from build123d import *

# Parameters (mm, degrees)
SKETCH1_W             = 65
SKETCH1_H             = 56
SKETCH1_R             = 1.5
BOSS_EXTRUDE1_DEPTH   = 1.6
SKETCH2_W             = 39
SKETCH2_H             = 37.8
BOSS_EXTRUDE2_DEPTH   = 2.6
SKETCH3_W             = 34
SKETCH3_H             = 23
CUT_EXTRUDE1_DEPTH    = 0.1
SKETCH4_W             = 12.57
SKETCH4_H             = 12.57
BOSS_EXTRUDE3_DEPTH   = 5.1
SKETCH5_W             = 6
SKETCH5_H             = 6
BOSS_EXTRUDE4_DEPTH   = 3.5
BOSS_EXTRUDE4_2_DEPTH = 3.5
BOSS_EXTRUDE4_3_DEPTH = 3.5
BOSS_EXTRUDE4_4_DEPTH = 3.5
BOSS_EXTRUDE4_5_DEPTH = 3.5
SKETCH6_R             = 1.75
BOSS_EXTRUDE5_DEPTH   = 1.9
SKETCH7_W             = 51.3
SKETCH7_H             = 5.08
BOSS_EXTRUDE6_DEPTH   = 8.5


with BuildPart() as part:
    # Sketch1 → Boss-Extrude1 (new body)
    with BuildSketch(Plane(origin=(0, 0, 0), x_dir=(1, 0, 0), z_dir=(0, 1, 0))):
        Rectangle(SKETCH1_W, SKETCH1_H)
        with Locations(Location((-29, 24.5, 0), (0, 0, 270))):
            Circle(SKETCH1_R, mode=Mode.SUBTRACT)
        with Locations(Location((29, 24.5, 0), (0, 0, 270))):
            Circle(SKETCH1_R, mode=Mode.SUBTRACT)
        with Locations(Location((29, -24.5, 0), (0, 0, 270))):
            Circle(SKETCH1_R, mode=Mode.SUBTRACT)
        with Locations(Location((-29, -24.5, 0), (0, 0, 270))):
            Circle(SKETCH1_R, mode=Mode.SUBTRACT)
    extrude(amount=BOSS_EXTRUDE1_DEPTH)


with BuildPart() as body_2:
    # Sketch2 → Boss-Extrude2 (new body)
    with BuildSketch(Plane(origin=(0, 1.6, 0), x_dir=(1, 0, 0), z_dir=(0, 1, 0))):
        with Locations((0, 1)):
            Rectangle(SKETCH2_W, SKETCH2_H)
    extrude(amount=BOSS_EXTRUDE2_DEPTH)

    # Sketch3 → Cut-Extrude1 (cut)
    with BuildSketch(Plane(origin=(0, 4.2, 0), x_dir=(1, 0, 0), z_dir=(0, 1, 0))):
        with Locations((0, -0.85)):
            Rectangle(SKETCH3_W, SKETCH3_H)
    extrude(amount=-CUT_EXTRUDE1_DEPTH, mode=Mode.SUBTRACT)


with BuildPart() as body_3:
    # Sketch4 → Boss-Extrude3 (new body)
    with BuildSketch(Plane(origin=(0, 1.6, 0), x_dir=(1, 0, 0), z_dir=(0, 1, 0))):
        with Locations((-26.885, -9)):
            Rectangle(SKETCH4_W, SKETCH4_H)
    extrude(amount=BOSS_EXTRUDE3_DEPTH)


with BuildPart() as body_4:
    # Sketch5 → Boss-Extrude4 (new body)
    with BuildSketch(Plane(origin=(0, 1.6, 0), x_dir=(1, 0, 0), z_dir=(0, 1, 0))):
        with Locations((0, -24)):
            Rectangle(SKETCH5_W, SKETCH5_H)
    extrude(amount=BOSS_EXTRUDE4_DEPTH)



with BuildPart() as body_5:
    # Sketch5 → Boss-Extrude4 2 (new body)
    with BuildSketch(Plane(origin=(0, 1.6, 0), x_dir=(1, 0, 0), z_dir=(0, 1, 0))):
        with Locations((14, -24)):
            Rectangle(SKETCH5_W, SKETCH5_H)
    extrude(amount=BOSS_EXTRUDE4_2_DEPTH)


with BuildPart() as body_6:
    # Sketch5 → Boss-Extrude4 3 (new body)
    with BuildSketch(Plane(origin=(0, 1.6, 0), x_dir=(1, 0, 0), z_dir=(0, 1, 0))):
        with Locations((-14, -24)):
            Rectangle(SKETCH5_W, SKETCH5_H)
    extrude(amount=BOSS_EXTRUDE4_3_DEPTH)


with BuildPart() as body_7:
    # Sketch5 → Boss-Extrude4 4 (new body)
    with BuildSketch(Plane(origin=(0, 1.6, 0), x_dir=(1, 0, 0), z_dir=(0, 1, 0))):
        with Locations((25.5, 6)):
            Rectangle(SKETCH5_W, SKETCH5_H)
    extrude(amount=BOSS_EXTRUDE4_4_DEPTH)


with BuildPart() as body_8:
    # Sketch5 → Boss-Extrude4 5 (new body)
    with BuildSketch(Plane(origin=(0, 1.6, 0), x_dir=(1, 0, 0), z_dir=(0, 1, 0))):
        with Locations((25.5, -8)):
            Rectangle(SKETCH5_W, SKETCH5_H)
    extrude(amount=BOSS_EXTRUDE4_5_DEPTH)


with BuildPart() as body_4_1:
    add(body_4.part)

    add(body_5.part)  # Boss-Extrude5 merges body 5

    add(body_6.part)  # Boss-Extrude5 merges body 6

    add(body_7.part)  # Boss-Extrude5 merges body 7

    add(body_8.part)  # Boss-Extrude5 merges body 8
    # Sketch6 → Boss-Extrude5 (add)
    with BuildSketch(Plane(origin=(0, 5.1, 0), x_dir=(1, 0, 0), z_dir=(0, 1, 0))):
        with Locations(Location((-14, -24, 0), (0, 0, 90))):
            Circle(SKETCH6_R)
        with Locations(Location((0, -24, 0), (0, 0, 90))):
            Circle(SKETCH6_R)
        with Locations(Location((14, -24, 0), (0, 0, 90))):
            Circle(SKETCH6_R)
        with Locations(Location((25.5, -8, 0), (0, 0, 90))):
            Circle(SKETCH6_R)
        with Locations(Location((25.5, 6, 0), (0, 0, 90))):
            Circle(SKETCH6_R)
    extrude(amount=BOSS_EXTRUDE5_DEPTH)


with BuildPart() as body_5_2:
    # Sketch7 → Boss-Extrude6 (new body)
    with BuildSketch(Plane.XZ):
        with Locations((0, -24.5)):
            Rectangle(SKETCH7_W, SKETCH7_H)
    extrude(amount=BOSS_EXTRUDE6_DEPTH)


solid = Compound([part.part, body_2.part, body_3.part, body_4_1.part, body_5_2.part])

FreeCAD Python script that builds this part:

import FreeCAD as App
import Part
import Sketcher
from FreeCAD import Vector
Q = App.Units.Quantity

doc = App.newDocument("Part")
params = doc.addObject("Spreadsheet::Sheet", "Params")
for row, (alias, value) in enumerate([
    ("sketch1_diameter", "3 mm"),
    ("sketch1_width", "65 mm"),
    ("sketch1_height", "56 mm"),
    ("pad1_length", "1.6 mm"),
    ("sketch2_width", "39 mm"),
    ("sketch2_height", "37.8 mm"),
    ("pad2_length", "2.6 mm"),
    ("sketch3_width", "34 mm"),
    ("sketch3_height", "23 mm"),
    ("pocket1_length", "0.1 mm"),
    ("sketch4_width", "12.57 mm"),
    ("pad3_length", "5.1 mm"),
    ("sketch5_width", "6 mm"),
    ("pad4_length", "3.5 mm"),
    ("sketch6_width", "6 mm"),
    ("pad5_length", "3.5 mm"),
    ("sketch7_width", "6 mm"),
    ("pad6_length", "3.5 mm"),
    ("sketch8_width", "6 mm"),
    ("pad7_length", "3.5 mm"),
    ("sketch9_width", "6 mm"),
    ("pad8_length", "3.5 mm"),
    ("sketch10_diameter", "3.5 mm"),
    ("pad9_length", "1.9 mm"),
    ("sketch11_width", "51.3 mm"),
    ("sketch11_height", "5.08 mm"),
    ("pad10_length", "8.5 mm"),
], start=1):
    params.set(f"A{row}", alias)
    params.set(f"B{row}", "=" + value)
    params.setAlias(f"B{row}", alias)

body = doc.addObject("PartDesign::Body", "Body")

sketch1 = doc.addObject("Sketcher::SketchObject", "Sketch")
body.addObject(sketch1)
sketch1.AttachmentSupport = (doc.XZ_Plane, [""])
sketch1.MapMode = "FlatFace"
sketch1.addGeometry([
    Part.LineSegment(Vector(-32.5, -28, 0), Vector(-32.5, 28, 0)),
    Part.LineSegment(Vector(-32.5, 28, 0), Vector(32.5, 28, 0)),
    Part.LineSegment(Vector(32.5, 28, 0), Vector(32.5, -28, 0)),
    Part.LineSegment(Vector(32.5, -28, 0), Vector(-32.5, -28, 0)),
    Part.Circle(Vector(-29, 24.5, 0), Vector(0, 0, 1), 1.5),
    Part.Circle(Vector(29, 24.5, 0), Vector(0, 0, 1), 1.5),
    Part.Circle(Vector(-29, -24.5, 0), Vector(0, 0, 1), 1.5),
    Part.Circle(Vector(29, -24.5, 0), Vector(0, 0, 1), 1.5),
], False)
sketch1.addConstraint([
    Sketcher.Constraint("Coincident", 0, 2, 1, 1),
    Sketcher.Constraint("Coincident", 1, 2, 2, 1),
    Sketcher.Constraint("Coincident", 2, 2, 3, 1),
    Sketcher.Constraint("Coincident", 3, 2, 0, 1),
    Sketcher.Constraint("Vertical", 0),
    Sketcher.Constraint("Horizontal", 1),
    Sketcher.Constraint("Vertical", 2),
    Sketcher.Constraint("Horizontal", 3),
    Sketcher.Constraint("Equal", 4, 5),
    Sketcher.Constraint("Equal", 5, 6),
    Sketcher.Constraint("Equal", 6, 7),
    Sketcher.Constraint("Symmetric", 5, 3, 6, 3, -1, 1),
    Sketcher.Constraint("Symmetric", 4, 3, 7, 3, -1, 1),
    Sketcher.Constraint("Symmetric", 0, 2, 2, 2, -1, 1),
    Sketcher.Constraint("Symmetric", 4, 3, 5, 3, -2),
    Sketcher.Constraint("Diameter", 4, Q("3 mm")),
    Sketcher.Constraint("DistanceX", 1, 1, 1, 2, Q("65 mm")),
    Sketcher.Constraint("DistanceY", 0, 1, 0, 2, Q("56 mm")),
    Sketcher.Constraint("DistanceX", 4, 3, -1, 1, Q("29 mm")),
    Sketcher.Constraint("DistanceY", 6, 3, 4, 3, Q("49 mm")),
])
sketch1.setExpression("Constraints[15]", "Params.sketch1_diameter")
sketch1.setExpression("Constraints[16]", "Params.sketch1_width")
sketch1.setExpression("Constraints[17]", "Params.sketch1_height")
pad1 = doc.addObject("PartDesign::Pad", "Pad")
body.addObject(pad1)
pad1.Profile = sketch1
pad1.setExpression("Length", "Params.pad1_length")
pad1.Reversed = True
body2 = doc.addObject("PartDesign::Body", "Body001")

sketch2 = doc.addObject("Sketcher::SketchObject", "Sketch001")
body2.addObject(sketch2)
sketch2.AttachmentSupport = (doc.getObject("XZ_Plane001"), [""])
sketch2.MapMode = "FlatFace"
sketch2.AttachmentOffset = App.Placement(Vector(0, 0, -1.6), App.Rotation())
sketch2.addGeometry([
    Part.LineSegment(Vector(-20, -20, 0), Vector(-20, 18, 0)),
    Part.LineSegment(Vector(-20, 18, 0), Vector(20, 18, 0)),
    Part.LineSegment(Vector(20, 18, 0), Vector(20, -20, 0)),
    Part.LineSegment(Vector(20, -20, 0), Vector(-20, -20, 0)),
], False)
sketch2.addConstraint([
    Sketcher.Constraint("Coincident", 0, 2, 1, 1),
    Sketcher.Constraint("Coincident", 1, 2, 2, 1),
    Sketcher.Constraint("Coincident", 2, 2, 3, 1),
    Sketcher.Constraint("Coincident", 3, 2, 0, 1),
    Sketcher.Constraint("Vertical", 0),
    Sketcher.Constraint("Horizontal", 1),
    Sketcher.Constraint("Vertical", 2),
    Sketcher.Constraint("Horizontal", 3),
    Sketcher.Constraint("DistanceX", 1, 1, 1, 2, Q("39 mm")),
    Sketcher.Constraint("DistanceY", 0, 1, 0, 2, Q("37.8 mm")),
    Sketcher.Constraint("DistanceX", 0, 2, -1, 1, Q("19.5 mm")),
    Sketcher.Constraint("DistanceY", -1, 1, 0, 2, Q("17.9 mm")),
])
sketch2.setExpression("Constraints[8]", "Params.sketch2_width")
sketch2.setExpression("Constraints[9]", "Params.sketch2_height")
pad2 = doc.addObject("PartDesign::Pad", "Pad001")
body2.addObject(pad2)
pad2.Profile = sketch2
pad2.setExpression("Length", "Params.pad2_length")
pad2.Reversed = True

sketch3 = doc.addObject("Sketcher::SketchObject", "Sketch002")
body2.addObject(sketch3)
sketch3.AttachmentSupport = (doc.getObject("XZ_Plane001"), [""])
sketch3.MapMode = "FlatFace"
sketch3.AttachmentOffset = App.Placement(Vector(0, 0, -4.2), App.Rotation())
sketch3.addGeometry([
    Part.LineSegment(Vector(-17, -11, 0), Vector(-17, 12, 0)),
    Part.LineSegment(Vector(-17, 12, 0), Vector(17, 12, 0)),
    Part.LineSegment(Vector(17, 12, 0), Vector(17, -11, 0)),
    Part.LineSegment(Vector(17, -11, 0), Vector(-17, -11, 0)),
], False)
sketch3.addConstraint([
    Sketcher.Constraint("Coincident", 0, 2, 1, 1),
    Sketcher.Constraint("Coincident", 1, 2, 2, 1),
    Sketcher.Constraint("Coincident", 2, 2, 3, 1),
    Sketcher.Constraint("Coincident", 3, 2, 0, 1),
    Sketcher.Constraint("Vertical", 0),
    Sketcher.Constraint("Horizontal", 1),
    Sketcher.Constraint("Vertical", 2),
    Sketcher.Constraint("Horizontal", 3),
    Sketcher.Constraint("DistanceX", 1, 1, 1, 2, Q("34 mm")),
    Sketcher.Constraint("DistanceY", 0, 1, 0, 2, Q("23 mm")),
    Sketcher.Constraint("DistanceX", 0, 2, -1, 1, Q("17 mm")),
    Sketcher.Constraint("DistanceY", -1, 1, 0, 2, Q("12.35 mm")),
])
sketch3.setExpression("Constraints[8]", "Params.sketch3_width")
sketch3.setExpression("Constraints[9]", "Params.sketch3_height")
pocket1 = doc.addObject("PartDesign::Pocket", "Pocket")
body2.addObject(pocket1)
pocket1.Profile = sketch3
pocket1.setExpression("Length", "Params.pocket1_length")
pocket1.Reversed = True
body3 = doc.addObject("PartDesign::Body", "Body002")

sketch4 = doc.addObject("Sketcher::SketchObject", "Sketch003")
body3.addObject(sketch4)
sketch4.AttachmentSupport = (doc.getObject("XZ_Plane002"), [""])
sketch4.MapMode = "FlatFace"
sketch4.AttachmentOffset = App.Placement(Vector(0, 0, -1.6), App.Rotation())
sketch4.addGeometry([
    Part.LineSegment(Vector(-33, 3, 0), Vector(-33, 15, 0)),
    Part.LineSegment(Vector(-33, 15, 0), Vector(-21, 15, 0)),
    Part.LineSegment(Vector(-21, 15, 0), Vector(-21, 3, 0)),
    Part.LineSegment(Vector(-21, 3, 0), Vector(-33, 3, 0)),
], False)
sketch4.addConstraint([
    Sketcher.Constraint("Coincident", 0, 2, 1, 1),
    Sketcher.Constraint("Coincident", 1, 2, 2, 1),
    Sketcher.Constraint("Coincident", 2, 2, 3, 1),
    Sketcher.Constraint("Coincident", 3, 2, 0, 1),
    Sketcher.Constraint("Vertical", 0),
    Sketcher.Constraint("Horizontal", 1),
    Sketcher.Constraint("Vertical", 2),
    Sketcher.Constraint("Horizontal", 3),
    Sketcher.Constraint("Equal", 3, 0),
    Sketcher.Constraint("DistanceX", 1, 1, 1, 2, Q("12.57 mm")),
    Sketcher.Constraint("DistanceX", 1, 2, -1, 1, Q("20.6 mm")),
    Sketcher.Constraint("DistanceY", -1, 1, 0, 2, Q("15.285 mm")),
])
sketch4.setExpression("Constraints[9]", "Params.sketch4_width")
pad3 = doc.addObject("PartDesign::Pad", "Pad002")
body3.addObject(pad3)
pad3.Profile = sketch4
pad3.setExpression("Length", "Params.pad3_length")
pad3.Reversed = True
body4 = doc.addObject("PartDesign::Body", "Body003")

sketch5 = doc.addObject("Sketcher::SketchObject", "Sketch004")
body4.addObject(sketch5)
sketch5.AttachmentSupport = (doc.getObject("XZ_Plane003"), [""])
sketch5.MapMode = "FlatFace"
sketch5.AttachmentOffset = App.Placement(Vector(0, 0, -1.6), App.Rotation())
sketch5.addGeometry([
    Part.LineSegment(Vector(-3, 21, 0), Vector(-3, 27, 0)),
    Part.LineSegment(Vector(-3, 27, 0), Vector(3, 27, 0)),
    Part.LineSegment(Vector(3, 27, 0), Vector(3, 21, 0)),
    Part.LineSegment(Vector(3, 21, 0), Vector(-3, 21, 0)),
], False)
sketch5.addConstraint([
    Sketcher.Constraint("Coincident", 0, 2, 1, 1),
    Sketcher.Constraint("Coincident", 1, 2, 2, 1),
    Sketcher.Constraint("Coincident", 2, 2, 3, 1),
    Sketcher.Constraint("Coincident", 3, 2, 0, 1),
    Sketcher.Constraint("Vertical", 0),
    Sketcher.Constraint("Horizontal", 1),
    Sketcher.Constraint("Vertical", 2),
    Sketcher.Constraint("Horizontal", 3),
    Sketcher.Constraint("Equal", 3, 0),
    Sketcher.Constraint("DistanceX", 1, 1, 1, 2, Q("6 mm")),
    Sketcher.Constraint("DistanceX", 0, 2, -1, 1, Q("3 mm")),
    Sketcher.Constraint("DistanceY", -1, 1, 0, 2, Q("27 mm")),
])
sketch5.setExpression("Constraints[9]", "Params.sketch5_width")
pad4 = doc.addObject("PartDesign::Pad", "Pad003")
body4.addObject(pad4)
pad4.Profile = sketch5
pad4.setExpression("Length", "Params.pad4_length")
pad4.Reversed = True
body5 = doc.addObject("PartDesign::Body", "Body004")

sketch6 = doc.addObject("Sketcher::SketchObject", "Sketch005")
body5.addObject(sketch6)
sketch6.AttachmentSupport = (doc.getObject("XZ_Plane004"), [""])
sketch6.MapMode = "FlatFace"
sketch6.AttachmentOffset = App.Placement(Vector(0, 0, -1.6), App.Rotation())
sketch6.addGeometry([
    Part.LineSegment(Vector(11, 21, 0), Vector(11, 27, 0)),
    Part.LineSegment(Vector(11, 27, 0), Vector(17, 27, 0)),
    Part.LineSegment(Vector(17, 27, 0), Vector(17, 21, 0)),
    Part.LineSegment(Vector(17, 21, 0), Vector(11, 21, 0)),
], False)
sketch6.addConstraint([
    Sketcher.Constraint("Coincident", 0, 2, 1, 1),
    Sketcher.Constraint("Coincident", 1, 2, 2, 1),
    Sketcher.Constraint("Coincident", 2, 2, 3, 1),
    Sketcher.Constraint("Coincident", 3, 2, 0, 1),
    Sketcher.Constraint("Vertical", 0),
    Sketcher.Constraint("Horizontal", 1),
    Sketcher.Constraint("Vertical", 2),
    Sketcher.Constraint("Horizontal", 3),
    Sketcher.Constraint("Equal", 3, 0),
    Sketcher.Constraint("DistanceX", 1, 1, 1, 2, Q("6 mm")),
    Sketcher.Constraint("DistanceX", -1, 1, 0, 2, Q("11 mm")),
    Sketcher.Constraint("DistanceY", -1, 1, 0, 2, Q("27 mm")),
])
sketch6.setExpression("Constraints[9]", "Params.sketch6_width")
pad5 = doc.addObject("PartDesign::Pad", "Pad004")
body5.addObject(pad5)
pad5.Profile = sketch6
pad5.setExpression("Length", "Params.pad5_length")
pad5.Reversed = True
body6 = doc.addObject("PartDesign::Body", "Body005")

sketch7 = doc.addObject("Sketcher::SketchObject", "Sketch006")
body6.addObject(sketch7)
sketch7.AttachmentSupport = (doc.getObject("XZ_Plane005"), [""])
sketch7.MapMode = "FlatFace"
sketch7.AttachmentOffset = App.Placement(Vector(0, 0, -1.6), App.Rotation())
sketch7.addGeometry([
    Part.LineSegment(Vector(-17, 21, 0), Vector(-17, 27, 0)),
    Part.LineSegment(Vector(-17, 27, 0), Vector(-11, 27, 0)),
    Part.LineSegment(Vector(-11, 27, 0), Vector(-11, 21, 0)),
    Part.LineSegment(Vector(-11, 21, 0), Vector(-17, 21, 0)),
], False)
sketch7.addConstraint([
    Sketcher.Constraint("Coincident", 0, 2, 1, 1),
    Sketcher.Constraint("Coincident", 1, 2, 2, 1),
    Sketcher.Constraint("Coincident", 2, 2, 3, 1),
    Sketcher.Constraint("Coincident", 3, 2, 0, 1),
    Sketcher.Constraint("Vertical", 0),
    Sketcher.Constraint("Horizontal", 1),
    Sketcher.Constraint("Vertical", 2),
    Sketcher.Constraint("Horizontal", 3),
    Sketcher.Constraint("Equal", 3, 0),
    Sketcher.Constraint("DistanceX", 1, 1, 1, 2, Q("6 mm")),
    Sketcher.Constraint("DistanceX", 0, 2, -1, 1, Q("17 mm")),
    Sketcher.Constraint("DistanceY", -1, 1, 0, 2, Q("27 mm")),
])
sketch7.setExpression("Constraints[9]", "Params.sketch7_width")
pad6 = doc.addObject("PartDesign::Pad", "Pad005")
body6.addObject(pad6)
pad6.Profile = sketch7
pad6.setExpression("Length", "Params.pad6_length")
pad6.Reversed = True
body7 = doc.addObject("PartDesign::Body", "Body006")

sketch8 = doc.addObject("Sketcher::SketchObject", "Sketch007")
body7.addObject(sketch8)
sketch8.AttachmentSupport = (doc.getObject("XZ_Plane006"), [""])
sketch8.MapMode = "FlatFace"
sketch8.AttachmentOffset = App.Placement(Vector(0, 0, -1.6), App.Rotation())
sketch8.addGeometry([
    Part.LineSegment(Vector(22, -9, 0), Vector(22, -3, 0)),
    Part.LineSegment(Vector(22, -3, 0), Vector(28, -3, 0)),
    Part.LineSegment(Vector(28, -3, 0), Vector(28, -9, 0)),
    Part.LineSegment(Vector(28, -9, 0), Vector(22, -9, 0)),
], False)
sketch8.addConstraint([
    Sketcher.Constraint("Coincident", 0, 2, 1, 1),
    Sketcher.Constraint("Coincident", 1, 2, 2, 1),
    Sketcher.Constraint("Coincident", 2, 2, 3, 1),
    Sketcher.Constraint("Coincident", 3, 2, 0, 1),
    Sketcher.Constraint("Vertical", 0),
    Sketcher.Constraint("Horizontal", 1),
    Sketcher.Constraint("Vertical", 2),
    Sketcher.Constraint("Horizontal", 3),
    Sketcher.Constraint("Equal", 3, 0),
    Sketcher.Constraint("DistanceX", 1, 1, 1, 2, Q("6 mm")),
    Sketcher.Constraint("DistanceY", 0, 2, -1, 1, Q("3 mm")),
    Sketcher.Constraint("DistanceX", -1, 1, 0, 2, Q("22.5 mm")),
])
sketch8.setExpression("Constraints[9]", "Params.sketch8_width")
pad7 = doc.addObject("PartDesign::Pad", "Pad006")
body7.addObject(pad7)
pad7.Profile = sketch8
pad7.setExpression("Length", "Params.pad7_length")
pad7.Reversed = True
body8 = doc.addObject("PartDesign::Body", "Body007")

sketch9 = doc.addObject("Sketcher::SketchObject", "Sketch008")
body8.addObject(sketch9)
sketch9.AttachmentSupport = (doc.getObject("XZ_Plane007"), [""])
sketch9.MapMode = "FlatFace"
sketch9.AttachmentOffset = App.Placement(Vector(0, 0, -1.6), App.Rotation())
sketch9.addGeometry([
    Part.LineSegment(Vector(22, 5, 0), Vector(22, 11, 0)),
    Part.LineSegment(Vector(22, 11, 0), Vector(28, 11, 0)),
    Part.LineSegment(Vector(28, 11, 0), Vector(28, 5, 0)),
    Part.LineSegment(Vector(28, 5, 0), Vector(22, 5, 0)),
], False)
sketch9.addConstraint([
    Sketcher.Constraint("Coincident", 0, 2, 1, 1),
    Sketcher.Constraint("Coincident", 1, 2, 2, 1),
    Sketcher.Constraint("Coincident", 2, 2, 3, 1),
    Sketcher.Constraint("Coincident", 3, 2, 0, 1),
    Sketcher.Constraint("Vertical", 0),
    Sketcher.Constraint("Horizontal", 1),
    Sketcher.Constraint("Vertical", 2),
    Sketcher.Constraint("Horizontal", 3),
    Sketcher.Constraint("Equal", 3, 0),
    Sketcher.Constraint("DistanceX", 1, 1, 1, 2, Q("6 mm")),
    Sketcher.Constraint("DistanceY", -1, 1, 0, 2, Q("11 mm")),
    Sketcher.Constraint("DistanceX", -1, 1, 0, 2, Q("22.5 mm")),
])
sketch9.setExpression("Constraints[9]", "Params.sketch9_width")
pad8 = doc.addObject("PartDesign::Pad", "Pad007")
body8.addObject(pad8)
pad8.Profile = sketch9
pad8.setExpression("Length", "Params.pad8_length")
pad8.Reversed = True
body4.AllowCompound = True
doc.recompute()

boolean = doc.addObject("PartDesign::Boolean", "Boolean")
body4.addObject(boolean)
boolean.Type = "Fuse"
boolean.addObjects([body5])
doc.recompute()

boolean2 = doc.addObject("PartDesign::Boolean", "Boolean001")
body4.addObject(boolean2)
boolean2.Type = "Fuse"
boolean2.addObjects([body6])
doc.recompute()

boolean3 = doc.addObject("PartDesign::Boolean", "Boolean002")
body4.addObject(boolean3)
boolean3.Type = "Fuse"
boolean3.addObjects([body7])
doc.recompute()

boolean4 = doc.addObject("PartDesign::Boolean", "Boolean003")
body4.addObject(boolean4)
boolean4.Type = "Fuse"
boolean4.addObjects([body8])

sketch10 = doc.addObject("Sketcher::SketchObject", "Sketch009")
body4.addObject(sketch10)
sketch10.AttachmentSupport = (doc.getObject("XZ_Plane003"), [""])
sketch10.MapMode = "FlatFace"
sketch10.AttachmentOffset = App.Placement(Vector(0, 0, -5.1), App.Rotation())
sketch10.addGeometry([
    Part.Circle(Vector(-14, 24, 0), Vector(0, 0, 1), 1.8),
    Part.Circle(Vector(0, 24, 0), Vector(0, 0, 1), 1.8),
    Part.Circle(Vector(14, 24, 0), Vector(0, 0, 1), 1.8),
    Part.Circle(Vector(25.5, 8, 0), Vector(0, 0, 1), 1.8),
    Part.Circle(Vector(25.5, -6, 0), Vector(0, 0, 1), 1.8),
], False)
sketch10.addConstraint([
    Sketcher.Constraint("Equal", 0, 1),
    Sketcher.Constraint("Equal", 1, 2),
    Sketcher.Constraint("Equal", 2, 3),
    Sketcher.Constraint("Equal", 3, 4),
    Sketcher.Constraint("Symmetric", 0, 3, 2, 3, -2),
    Sketcher.Constraint("PointOnObject", 1, 3, -2),
    Sketcher.Constraint("Horizontal", 0, 3, 1, 3),
    Sketcher.Constraint("Vertical", 3, 3, 4, 3),
    Sketcher.Constraint("Diameter", 0, Q("3.5 mm")),
    Sketcher.Constraint("DistanceX", 0, 3, -1, 1, Q("14 mm")),
    Sketcher.Constraint("DistanceY", -1, 1, 0, 3, Q("24 mm")),
    Sketcher.Constraint("DistanceY", -1, 1, 3, 3, Q("8 mm")),
    Sketcher.Constraint("DistanceY", 4, 3, -1, 1, Q("6 mm")),
    Sketcher.Constraint("DistanceX", -1, 1, 3, 3, Q("25.5 mm")),
])
sketch10.setExpression("Constraints[8]", "Params.sketch10_diameter")
pad9 = doc.addObject("PartDesign::Pad", "Pad008")
body4.addObject(pad9)
pad9.Profile = sketch10
pad9.setExpression("Length", "Params.pad9_length")
pad9.Reversed = True
body9 = doc.addObject("PartDesign::Body", "Body008")

sketch11 = doc.addObject("Sketcher::SketchObject", "Sketch010")
body9.addObject(sketch11)
sketch11.AttachmentSupport = (doc.getObject("XZ_Plane008"), [""])
sketch11.MapMode = "FlatFace"
sketch11.addGeometry([
    Part.LineSegment(Vector(-26, -22, 0), Vector(-26, -27, 0)),
    Part.LineSegment(Vector(-26, -27, 0), Vector(26, -27, 0)),
    Part.LineSegment(Vector(26, -27, 0), Vector(26, -22, 0)),
    Part.LineSegment(Vector(26, -22, 0), Vector(-26, -22, 0)),
], False)
sketch11.addConstraint([
    Sketcher.Constraint("Coincident", 0, 2, 1, 1),
    Sketcher.Constraint("Coincident", 1, 2, 2, 1),
    Sketcher.Constraint("Coincident", 2, 2, 3, 1),
    Sketcher.Constraint("Coincident", 3, 2, 0, 1),
    Sketcher.Constraint("Vertical", 0),
    Sketcher.Constraint("Horizontal", 1),
    Sketcher.Constraint("Vertical", 2),
    Sketcher.Constraint("Horizontal", 3),
    Sketcher.Constraint("DistanceX", 1, 1, 1, 2, Q("51.3 mm")),
    Sketcher.Constraint("DistanceY", 0, 2, 0, 1, Q("5.08 mm")),
    Sketcher.Constraint("DistanceX", 0, 2, -1, 1, Q("25.65 mm")),
    Sketcher.Constraint("DistanceY", 0, 2, -1, 1, Q("27.04 mm")),
])
sketch11.setExpression("Constraints[8]", "Params.sketch11_width")
sketch11.setExpression("Constraints[9]", "Params.sketch11_height")
pad10 = doc.addObject("PartDesign::Pad", "Pad009")
body9.addObject(pad10)
pad10.Profile = sketch11
pad10.setExpression("Length", "Params.pad10_length")

doc.recompute()
